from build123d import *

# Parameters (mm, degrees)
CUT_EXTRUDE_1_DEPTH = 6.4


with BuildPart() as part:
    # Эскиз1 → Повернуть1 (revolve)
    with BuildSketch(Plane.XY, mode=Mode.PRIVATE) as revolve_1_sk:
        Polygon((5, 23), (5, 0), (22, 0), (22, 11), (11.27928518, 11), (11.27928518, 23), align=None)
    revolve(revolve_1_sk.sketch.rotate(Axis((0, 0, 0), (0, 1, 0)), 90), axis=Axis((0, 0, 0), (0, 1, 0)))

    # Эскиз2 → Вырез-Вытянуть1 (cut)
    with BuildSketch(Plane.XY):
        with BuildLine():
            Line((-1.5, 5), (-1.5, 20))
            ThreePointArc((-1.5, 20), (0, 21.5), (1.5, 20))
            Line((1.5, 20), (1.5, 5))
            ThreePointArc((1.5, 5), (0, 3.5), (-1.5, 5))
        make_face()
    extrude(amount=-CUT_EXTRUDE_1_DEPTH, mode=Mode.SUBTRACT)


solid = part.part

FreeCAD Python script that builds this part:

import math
import FreeCAD as App
import Part
import Sketcher
Q = App.Units.Quantity


def add_polygon(sketch, points):
    """Adds a closed chain of lines whose ends are joined by coincident constraints."""
    first, n = sketch.GeometryCount, len(points)
    for a, b in zip(points, points[1:] + points[:1]):
        sketch.addGeometry(Part.LineSegment(App.Vector(*a, 0), App.Vector(*b, 0)), False)
    for i in range(n):
        sketch.addConstraint(Sketcher.Constraint("Coincident", first + i, 2, first + (i + 1) % n, 1))

doc = App.newDocument("Part")
body = doc.addObject("PartDesign::Body", "Body")

# Sketch on XY plane
sketch1 = doc.addObject("Sketcher::SketchObject", "Sketch")
body.addObject(sketch1)
sketch1.AttachmentSupport = (doc.XY_Plane, [""])
sketch1.MapMode = "FlatFace"
add_polygon(sketch1, [(5, 23), (5, 0), (22, 0), (22, 11), (11, 11), (11, 23)])  # lines 0-5
sketch1.addConstraint(Sketcher.Constraint("Vertical", 0))
sketch1.addConstraint(Sketcher.Constraint("Horizontal", 1))
sketch1.addConstraint(Sketcher.Constraint("Vertical", 2))
sketch1.addConstraint(Sketcher.Constraint("Horizontal", 3))
sketch1.addConstraint(Sketcher.Constraint("Vertical", 4))
sketch1.addConstraint(Sketcher.Constraint("Horizontal", 5))
sketch1.addConstraint(Sketcher.Constraint("PointOnObject", 0, 2, -1))
sketch1.addConstraint(Sketcher.Constraint("DistanceX", 1, 1, 1, 2, Q("17 mm")))
sketch1.addConstraint(Sketcher.Constraint("DistanceY", 0, 2, 0, 1, Q("23 mm")))
sketch1.addConstraint(Sketcher.Constraint("DistanceY", 2, 1, 2, 2, Q("11 mm")))
sketch1.addConstraint(Sketcher.Constraint("DistanceX", -1, 1, 0, 2, Q("5 mm")))
sketch1.addConstraint(Sketcher.Constraint("DistanceX", 3, 2, 3, 1, Q("10.720715 mm")))
revolution = doc.addObject("PartDesign::Revolution", "Revolution")
body.addObject(revolution)
revolution.Profile = sketch1
revolution.ReferenceAxis = (sketch1, ["V_Axis"])
revolution.Angle = 360

# Sketch on XY plane
sketch2 = doc.addObject("Sketcher::SketchObject", "Sketch001")
body.addObject(sketch2)
sketch2.AttachmentSupport = (doc.XY_Plane, [""])
sketch2.MapMode = "FlatFace"
sketch2.addGeometry(Part.LineSegment(App.Vector(-1.5, 20, 0), App.Vector(-1.5, 5, 0)), False)
sketch2.addGeometry(Part.ArcOfCircle(Part.Circle(App.Vector(0, 5, 0), App.Vector(0, 0, 1), 1.5), math.radians(180), math.radians(360)), False)
sketch2.addGeometry(Part.LineSegment(App.Vector(1.5, 5, 0), App.Vector(1.5, 20, 0)), False)
sketch2.addGeometry(Part.ArcOfCircle(Part.Circle(App.Vector(0, 20, 0), App.Vector(0, 0, 1), 1.5), math.radians(0), math.radians(180)), False)
sketch2.addConstraint(Sketcher.Constraint("Tangent", 0, 2, 1, 1))
sketch2.addConstraint(Sketcher.Constraint("Tangent", 1, 2, 2, 1))
sketch2.addConstraint(Sketcher.Constraint("Tangent", 2, 2, 3, 1))
sketch2.addConstraint(Sketcher.Constraint("Tangent", 3, 2, 0, 1))
sketch2.addConstraint(Sketcher.Constraint("Vertical", 0))
sketch2.addConstraint(Sketcher.Constraint("Vertical", 2))
sketch2.addConstraint(Sketcher.Constraint("PointOnObject", 1, 3, -2))
sketch2.addConstraint(Sketcher.Constraint("Radius", 1, Q("1.5 mm")))
sketch2.addConstraint(Sketcher.Constraint("DistanceY", 0, 2, 0, 1, Q("15 mm")))
sketch2.addConstraint(Sketcher.Constraint("DistanceY", -1, 1, 1, 3, Q("5 mm")))
pocket1 = doc.addObject("PartDesign::Pocket", "Pocket")
body.addObject(pocket1)
pocket1.Profile = sketch2
pocket1.Length = 6.4

doc.recompute()
